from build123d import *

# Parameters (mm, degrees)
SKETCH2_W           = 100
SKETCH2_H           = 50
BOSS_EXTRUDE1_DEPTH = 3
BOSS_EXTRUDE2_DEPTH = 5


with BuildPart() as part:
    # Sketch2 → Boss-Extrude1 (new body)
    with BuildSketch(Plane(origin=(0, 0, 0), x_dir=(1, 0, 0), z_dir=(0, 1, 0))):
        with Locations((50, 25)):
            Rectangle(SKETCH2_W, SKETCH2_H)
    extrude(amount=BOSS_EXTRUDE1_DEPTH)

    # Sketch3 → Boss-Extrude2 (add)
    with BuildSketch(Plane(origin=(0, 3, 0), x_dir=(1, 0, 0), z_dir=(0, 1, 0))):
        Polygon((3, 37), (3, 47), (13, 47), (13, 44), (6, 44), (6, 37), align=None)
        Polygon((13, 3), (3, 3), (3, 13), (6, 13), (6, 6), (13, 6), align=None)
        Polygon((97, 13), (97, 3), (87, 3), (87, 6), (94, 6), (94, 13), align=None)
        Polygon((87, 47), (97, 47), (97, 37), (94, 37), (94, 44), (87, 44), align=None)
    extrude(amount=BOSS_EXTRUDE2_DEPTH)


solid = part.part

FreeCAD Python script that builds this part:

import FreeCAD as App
import Part
import Sketcher

V = App.Vector
Q = App.Units.Quantity


def add_polygon(sketch, points):
    """Adds a closed chain of lines whose ends are joined by coincident constraints."""
    first, n = sketch.GeometryCount, len(points)
    for a, b in zip(points, points[1:] + points[:1]):
        sketch.addGeometry(Part.LineSegment(App.Vector(*a, 0), App.Vector(*b, 0)), False)
    for i in range(n):
        sketch.addConstraint(Sketcher.Constraint("Coincident", first + i, 2, first + (i + 1) % n, 1))

doc = App.newDocument("Part")
params = doc.addObject("Spreadsheet::Sheet", "Params")
for row, (alias, value) in enumerate([
    ("sketch1_width", "100 mm"),
    ("sketch1_height", "50 mm"),
    ("pad1_length", "3 mm"),
    ("sketch2_width", "3 mm"),
    ("sketch2_width2", "7 mm"),
    ("pad2_length", "5 mm"),
], start=1):
    params.set(f"A{row}", alias)
    params.set(f"B{row}", "=" + value)
    params.setAlias(f"B{row}", alias)

body = doc.addObject("PartDesign::Body", "Body")

# Sketch on XZ plane
sketch1 = body.newObject("Sketcher::SketchObject", "Sketch")
sketch1.AttachmentSupport = (doc.getObject("XZ_Plane"), [""])
sketch1.MapMode = "FlatFace"
add_polygon(sketch1, [(0, -50), (0, 0), (100, 0), (100, -50)])  # lines 0-3
sketch1.addConstraint([
    Sketcher.Constraint("Vertical", 0),
    Sketcher.Constraint("Horizontal", 1),
    Sketcher.Constraint("Vertical", 2),
    Sketcher.Constraint("Horizontal", 3),
    Sketcher.Constraint("Coincident", 0, 2, -1, 1),
    Sketcher.Constraint("DistanceX", 1, 1, 1, 2, Q("100 mm")),
    Sketcher.Constraint("DistanceY", 0, 1, 0, 2, Q("50 mm")),
])
sketch1.setExpression("Constraints[9]", "Params.sketch1_width")
sketch1.setExpression("Constraints[10]", "Params.sketch1_height")
pad1 = body.newObject("PartDesign::Pad", "Pad")
pad1.Profile = sketch1
pad1.setExpression("Length", "Params.pad1_length")
pad1.Reversed = True

# Sketch on XZ plane
sketch2 = body.newObject("Sketcher::SketchObject", "Sketch001")
sketch2.AttachmentSupport = (doc.getObject("XZ_Plane"), [""])
sketch2.MapMode = "FlatFace"
sketch2.AttachmentOffset = App.Placement(V(0, 0, -3), App.Rotation())
add_polygon(sketch2, [(3, -47), (3, -37), (6, -37), (6, -44), (13, -44), (13, -47)])  # lines 0-5
add_polygon(sketch2, [(3, -3), (13, -3), (13, -6), (6, -6), (6, -13), (3, -13)])  # lines 6-11
add_polygon(sketch2, [(97, -3), (97, -13), (94, -13), (94, -6), (87, -6), (87, -3)])  # lines 12-17
add_polygon(sketch2, [(97, -47), (87, -47), (87, -44), (94, -44), (94, -37), (97, -37)])  # lines 18-23
sketch2.addConstraint([
    Sketcher.Constraint("Vertical", 0),
    Sketcher.Constraint("Horizontal", 1),
    Sketcher.Constraint("Vertical", 2),
    Sketcher.Constraint("Horizontal", 3),
    Sketcher.Constraint("Vertical", 4),
    Sketcher.Constraint("Horizontal", 5),
    Sketcher.Constraint("Horizontal", 6),
    Sketcher.Constraint("Vertical", 7),
    Sketcher.Constraint("Horizontal", 8),
    Sketcher.Constraint("Vertical", 9),
    Sketcher.Constraint("Horizontal", 10),
    Sketcher.Constraint("Vertical", 11),
    Sketcher.Constraint("Vertical", 12),
    Sketcher.Constraint("Horizontal", 13),
    Sketcher.Constraint("Vertical", 14),
    Sketcher.Constraint("Horizontal", 15),
    Sketcher.Constraint("Vertical", 16),
    Sketcher.Constraint("Horizontal", 17),
    Sketcher.Constraint("Horizontal", 18),
    Sketcher.Constraint("Vertical", 19),
    Sketcher.Constraint("Horizontal", 20),
    Sketcher.Constraint("Vertical", 21),
    Sketcher.Constraint("Horizontal", 22),
    Sketcher.Constraint("Vertical", 23),
    Sketcher.Constraint("Horizontal", 10, 2, 12, 2),
    Sketcher.Constraint("Horizontal", 8, 2, 14, 2),
    Sketcher.Constraint("Horizontal", 11, 2, 16, 2),
    Sketcher.Constraint("Horizontal", 5, 2, 18, 2),
    Sketcher.Constraint("Horizontal", 3, 2, 19, 2),
    Sketcher.Constraint("Horizontal", 1, 2, 21, 2),
    Sketcher.Constraint("Vertical", 4, 2, 6, 2),
    Sketcher.Constraint("Vertical", 2, 2, 8, 2),
    Sketcher.Constraint("Vertical", 5, 2, 10, 2),
    Sketcher.Constraint("Vertical", 16, 2, 18, 2),
    Sketcher.Constraint("Vertical", 14, 2, 20, 2),
    Sketcher.Constraint("Vertical", 17, 2, 22, 2),
    Sketcher.Constraint("Equal", 10, 13),
    Sketcher.Constraint("Equal", 8, 15),
    Sketcher.Constraint("Equal", 18, 0),
    Sketcher.Constraint("Equal", 20, 2),
    Sketcher.Constraint("Equal", 4, 7),
    Sketcher.Constraint("Equal", 2, 9),
    Sketcher.Constraint("DistanceX", 1, 1, 1, 2, Q("3 mm")),
    Sketcher.Constraint("DistanceX", 3, 1, 3, 2, Q("7 mm")),
    Sketcher.Constraint("DistanceX", -1, 1, 0, 2, Q("3 mm")),
    Sketcher.Constraint("DistanceY", 0, 2, -1, 1, Q("37 mm")),
    Sketcher.Constraint("DistanceY", 6, 2, -1, 1, Q("3 mm")),
    Sketcher.Constraint("DistanceX", -1, 1, 12, 2, Q("97 mm")),
])
sketch2.setExpression("Constraints[66]", "Params.sketch2_width")
sketch2.setExpression("Constraints[67]", "Params.sketch2_width2")
pad2 = body.newObject("PartDesign::Pad", "Pad001")
pad2.Profile = sketch2
pad2.setExpression("Length", "Params.pad2_length")
pad2.Reversed = True

doc.recompute()
